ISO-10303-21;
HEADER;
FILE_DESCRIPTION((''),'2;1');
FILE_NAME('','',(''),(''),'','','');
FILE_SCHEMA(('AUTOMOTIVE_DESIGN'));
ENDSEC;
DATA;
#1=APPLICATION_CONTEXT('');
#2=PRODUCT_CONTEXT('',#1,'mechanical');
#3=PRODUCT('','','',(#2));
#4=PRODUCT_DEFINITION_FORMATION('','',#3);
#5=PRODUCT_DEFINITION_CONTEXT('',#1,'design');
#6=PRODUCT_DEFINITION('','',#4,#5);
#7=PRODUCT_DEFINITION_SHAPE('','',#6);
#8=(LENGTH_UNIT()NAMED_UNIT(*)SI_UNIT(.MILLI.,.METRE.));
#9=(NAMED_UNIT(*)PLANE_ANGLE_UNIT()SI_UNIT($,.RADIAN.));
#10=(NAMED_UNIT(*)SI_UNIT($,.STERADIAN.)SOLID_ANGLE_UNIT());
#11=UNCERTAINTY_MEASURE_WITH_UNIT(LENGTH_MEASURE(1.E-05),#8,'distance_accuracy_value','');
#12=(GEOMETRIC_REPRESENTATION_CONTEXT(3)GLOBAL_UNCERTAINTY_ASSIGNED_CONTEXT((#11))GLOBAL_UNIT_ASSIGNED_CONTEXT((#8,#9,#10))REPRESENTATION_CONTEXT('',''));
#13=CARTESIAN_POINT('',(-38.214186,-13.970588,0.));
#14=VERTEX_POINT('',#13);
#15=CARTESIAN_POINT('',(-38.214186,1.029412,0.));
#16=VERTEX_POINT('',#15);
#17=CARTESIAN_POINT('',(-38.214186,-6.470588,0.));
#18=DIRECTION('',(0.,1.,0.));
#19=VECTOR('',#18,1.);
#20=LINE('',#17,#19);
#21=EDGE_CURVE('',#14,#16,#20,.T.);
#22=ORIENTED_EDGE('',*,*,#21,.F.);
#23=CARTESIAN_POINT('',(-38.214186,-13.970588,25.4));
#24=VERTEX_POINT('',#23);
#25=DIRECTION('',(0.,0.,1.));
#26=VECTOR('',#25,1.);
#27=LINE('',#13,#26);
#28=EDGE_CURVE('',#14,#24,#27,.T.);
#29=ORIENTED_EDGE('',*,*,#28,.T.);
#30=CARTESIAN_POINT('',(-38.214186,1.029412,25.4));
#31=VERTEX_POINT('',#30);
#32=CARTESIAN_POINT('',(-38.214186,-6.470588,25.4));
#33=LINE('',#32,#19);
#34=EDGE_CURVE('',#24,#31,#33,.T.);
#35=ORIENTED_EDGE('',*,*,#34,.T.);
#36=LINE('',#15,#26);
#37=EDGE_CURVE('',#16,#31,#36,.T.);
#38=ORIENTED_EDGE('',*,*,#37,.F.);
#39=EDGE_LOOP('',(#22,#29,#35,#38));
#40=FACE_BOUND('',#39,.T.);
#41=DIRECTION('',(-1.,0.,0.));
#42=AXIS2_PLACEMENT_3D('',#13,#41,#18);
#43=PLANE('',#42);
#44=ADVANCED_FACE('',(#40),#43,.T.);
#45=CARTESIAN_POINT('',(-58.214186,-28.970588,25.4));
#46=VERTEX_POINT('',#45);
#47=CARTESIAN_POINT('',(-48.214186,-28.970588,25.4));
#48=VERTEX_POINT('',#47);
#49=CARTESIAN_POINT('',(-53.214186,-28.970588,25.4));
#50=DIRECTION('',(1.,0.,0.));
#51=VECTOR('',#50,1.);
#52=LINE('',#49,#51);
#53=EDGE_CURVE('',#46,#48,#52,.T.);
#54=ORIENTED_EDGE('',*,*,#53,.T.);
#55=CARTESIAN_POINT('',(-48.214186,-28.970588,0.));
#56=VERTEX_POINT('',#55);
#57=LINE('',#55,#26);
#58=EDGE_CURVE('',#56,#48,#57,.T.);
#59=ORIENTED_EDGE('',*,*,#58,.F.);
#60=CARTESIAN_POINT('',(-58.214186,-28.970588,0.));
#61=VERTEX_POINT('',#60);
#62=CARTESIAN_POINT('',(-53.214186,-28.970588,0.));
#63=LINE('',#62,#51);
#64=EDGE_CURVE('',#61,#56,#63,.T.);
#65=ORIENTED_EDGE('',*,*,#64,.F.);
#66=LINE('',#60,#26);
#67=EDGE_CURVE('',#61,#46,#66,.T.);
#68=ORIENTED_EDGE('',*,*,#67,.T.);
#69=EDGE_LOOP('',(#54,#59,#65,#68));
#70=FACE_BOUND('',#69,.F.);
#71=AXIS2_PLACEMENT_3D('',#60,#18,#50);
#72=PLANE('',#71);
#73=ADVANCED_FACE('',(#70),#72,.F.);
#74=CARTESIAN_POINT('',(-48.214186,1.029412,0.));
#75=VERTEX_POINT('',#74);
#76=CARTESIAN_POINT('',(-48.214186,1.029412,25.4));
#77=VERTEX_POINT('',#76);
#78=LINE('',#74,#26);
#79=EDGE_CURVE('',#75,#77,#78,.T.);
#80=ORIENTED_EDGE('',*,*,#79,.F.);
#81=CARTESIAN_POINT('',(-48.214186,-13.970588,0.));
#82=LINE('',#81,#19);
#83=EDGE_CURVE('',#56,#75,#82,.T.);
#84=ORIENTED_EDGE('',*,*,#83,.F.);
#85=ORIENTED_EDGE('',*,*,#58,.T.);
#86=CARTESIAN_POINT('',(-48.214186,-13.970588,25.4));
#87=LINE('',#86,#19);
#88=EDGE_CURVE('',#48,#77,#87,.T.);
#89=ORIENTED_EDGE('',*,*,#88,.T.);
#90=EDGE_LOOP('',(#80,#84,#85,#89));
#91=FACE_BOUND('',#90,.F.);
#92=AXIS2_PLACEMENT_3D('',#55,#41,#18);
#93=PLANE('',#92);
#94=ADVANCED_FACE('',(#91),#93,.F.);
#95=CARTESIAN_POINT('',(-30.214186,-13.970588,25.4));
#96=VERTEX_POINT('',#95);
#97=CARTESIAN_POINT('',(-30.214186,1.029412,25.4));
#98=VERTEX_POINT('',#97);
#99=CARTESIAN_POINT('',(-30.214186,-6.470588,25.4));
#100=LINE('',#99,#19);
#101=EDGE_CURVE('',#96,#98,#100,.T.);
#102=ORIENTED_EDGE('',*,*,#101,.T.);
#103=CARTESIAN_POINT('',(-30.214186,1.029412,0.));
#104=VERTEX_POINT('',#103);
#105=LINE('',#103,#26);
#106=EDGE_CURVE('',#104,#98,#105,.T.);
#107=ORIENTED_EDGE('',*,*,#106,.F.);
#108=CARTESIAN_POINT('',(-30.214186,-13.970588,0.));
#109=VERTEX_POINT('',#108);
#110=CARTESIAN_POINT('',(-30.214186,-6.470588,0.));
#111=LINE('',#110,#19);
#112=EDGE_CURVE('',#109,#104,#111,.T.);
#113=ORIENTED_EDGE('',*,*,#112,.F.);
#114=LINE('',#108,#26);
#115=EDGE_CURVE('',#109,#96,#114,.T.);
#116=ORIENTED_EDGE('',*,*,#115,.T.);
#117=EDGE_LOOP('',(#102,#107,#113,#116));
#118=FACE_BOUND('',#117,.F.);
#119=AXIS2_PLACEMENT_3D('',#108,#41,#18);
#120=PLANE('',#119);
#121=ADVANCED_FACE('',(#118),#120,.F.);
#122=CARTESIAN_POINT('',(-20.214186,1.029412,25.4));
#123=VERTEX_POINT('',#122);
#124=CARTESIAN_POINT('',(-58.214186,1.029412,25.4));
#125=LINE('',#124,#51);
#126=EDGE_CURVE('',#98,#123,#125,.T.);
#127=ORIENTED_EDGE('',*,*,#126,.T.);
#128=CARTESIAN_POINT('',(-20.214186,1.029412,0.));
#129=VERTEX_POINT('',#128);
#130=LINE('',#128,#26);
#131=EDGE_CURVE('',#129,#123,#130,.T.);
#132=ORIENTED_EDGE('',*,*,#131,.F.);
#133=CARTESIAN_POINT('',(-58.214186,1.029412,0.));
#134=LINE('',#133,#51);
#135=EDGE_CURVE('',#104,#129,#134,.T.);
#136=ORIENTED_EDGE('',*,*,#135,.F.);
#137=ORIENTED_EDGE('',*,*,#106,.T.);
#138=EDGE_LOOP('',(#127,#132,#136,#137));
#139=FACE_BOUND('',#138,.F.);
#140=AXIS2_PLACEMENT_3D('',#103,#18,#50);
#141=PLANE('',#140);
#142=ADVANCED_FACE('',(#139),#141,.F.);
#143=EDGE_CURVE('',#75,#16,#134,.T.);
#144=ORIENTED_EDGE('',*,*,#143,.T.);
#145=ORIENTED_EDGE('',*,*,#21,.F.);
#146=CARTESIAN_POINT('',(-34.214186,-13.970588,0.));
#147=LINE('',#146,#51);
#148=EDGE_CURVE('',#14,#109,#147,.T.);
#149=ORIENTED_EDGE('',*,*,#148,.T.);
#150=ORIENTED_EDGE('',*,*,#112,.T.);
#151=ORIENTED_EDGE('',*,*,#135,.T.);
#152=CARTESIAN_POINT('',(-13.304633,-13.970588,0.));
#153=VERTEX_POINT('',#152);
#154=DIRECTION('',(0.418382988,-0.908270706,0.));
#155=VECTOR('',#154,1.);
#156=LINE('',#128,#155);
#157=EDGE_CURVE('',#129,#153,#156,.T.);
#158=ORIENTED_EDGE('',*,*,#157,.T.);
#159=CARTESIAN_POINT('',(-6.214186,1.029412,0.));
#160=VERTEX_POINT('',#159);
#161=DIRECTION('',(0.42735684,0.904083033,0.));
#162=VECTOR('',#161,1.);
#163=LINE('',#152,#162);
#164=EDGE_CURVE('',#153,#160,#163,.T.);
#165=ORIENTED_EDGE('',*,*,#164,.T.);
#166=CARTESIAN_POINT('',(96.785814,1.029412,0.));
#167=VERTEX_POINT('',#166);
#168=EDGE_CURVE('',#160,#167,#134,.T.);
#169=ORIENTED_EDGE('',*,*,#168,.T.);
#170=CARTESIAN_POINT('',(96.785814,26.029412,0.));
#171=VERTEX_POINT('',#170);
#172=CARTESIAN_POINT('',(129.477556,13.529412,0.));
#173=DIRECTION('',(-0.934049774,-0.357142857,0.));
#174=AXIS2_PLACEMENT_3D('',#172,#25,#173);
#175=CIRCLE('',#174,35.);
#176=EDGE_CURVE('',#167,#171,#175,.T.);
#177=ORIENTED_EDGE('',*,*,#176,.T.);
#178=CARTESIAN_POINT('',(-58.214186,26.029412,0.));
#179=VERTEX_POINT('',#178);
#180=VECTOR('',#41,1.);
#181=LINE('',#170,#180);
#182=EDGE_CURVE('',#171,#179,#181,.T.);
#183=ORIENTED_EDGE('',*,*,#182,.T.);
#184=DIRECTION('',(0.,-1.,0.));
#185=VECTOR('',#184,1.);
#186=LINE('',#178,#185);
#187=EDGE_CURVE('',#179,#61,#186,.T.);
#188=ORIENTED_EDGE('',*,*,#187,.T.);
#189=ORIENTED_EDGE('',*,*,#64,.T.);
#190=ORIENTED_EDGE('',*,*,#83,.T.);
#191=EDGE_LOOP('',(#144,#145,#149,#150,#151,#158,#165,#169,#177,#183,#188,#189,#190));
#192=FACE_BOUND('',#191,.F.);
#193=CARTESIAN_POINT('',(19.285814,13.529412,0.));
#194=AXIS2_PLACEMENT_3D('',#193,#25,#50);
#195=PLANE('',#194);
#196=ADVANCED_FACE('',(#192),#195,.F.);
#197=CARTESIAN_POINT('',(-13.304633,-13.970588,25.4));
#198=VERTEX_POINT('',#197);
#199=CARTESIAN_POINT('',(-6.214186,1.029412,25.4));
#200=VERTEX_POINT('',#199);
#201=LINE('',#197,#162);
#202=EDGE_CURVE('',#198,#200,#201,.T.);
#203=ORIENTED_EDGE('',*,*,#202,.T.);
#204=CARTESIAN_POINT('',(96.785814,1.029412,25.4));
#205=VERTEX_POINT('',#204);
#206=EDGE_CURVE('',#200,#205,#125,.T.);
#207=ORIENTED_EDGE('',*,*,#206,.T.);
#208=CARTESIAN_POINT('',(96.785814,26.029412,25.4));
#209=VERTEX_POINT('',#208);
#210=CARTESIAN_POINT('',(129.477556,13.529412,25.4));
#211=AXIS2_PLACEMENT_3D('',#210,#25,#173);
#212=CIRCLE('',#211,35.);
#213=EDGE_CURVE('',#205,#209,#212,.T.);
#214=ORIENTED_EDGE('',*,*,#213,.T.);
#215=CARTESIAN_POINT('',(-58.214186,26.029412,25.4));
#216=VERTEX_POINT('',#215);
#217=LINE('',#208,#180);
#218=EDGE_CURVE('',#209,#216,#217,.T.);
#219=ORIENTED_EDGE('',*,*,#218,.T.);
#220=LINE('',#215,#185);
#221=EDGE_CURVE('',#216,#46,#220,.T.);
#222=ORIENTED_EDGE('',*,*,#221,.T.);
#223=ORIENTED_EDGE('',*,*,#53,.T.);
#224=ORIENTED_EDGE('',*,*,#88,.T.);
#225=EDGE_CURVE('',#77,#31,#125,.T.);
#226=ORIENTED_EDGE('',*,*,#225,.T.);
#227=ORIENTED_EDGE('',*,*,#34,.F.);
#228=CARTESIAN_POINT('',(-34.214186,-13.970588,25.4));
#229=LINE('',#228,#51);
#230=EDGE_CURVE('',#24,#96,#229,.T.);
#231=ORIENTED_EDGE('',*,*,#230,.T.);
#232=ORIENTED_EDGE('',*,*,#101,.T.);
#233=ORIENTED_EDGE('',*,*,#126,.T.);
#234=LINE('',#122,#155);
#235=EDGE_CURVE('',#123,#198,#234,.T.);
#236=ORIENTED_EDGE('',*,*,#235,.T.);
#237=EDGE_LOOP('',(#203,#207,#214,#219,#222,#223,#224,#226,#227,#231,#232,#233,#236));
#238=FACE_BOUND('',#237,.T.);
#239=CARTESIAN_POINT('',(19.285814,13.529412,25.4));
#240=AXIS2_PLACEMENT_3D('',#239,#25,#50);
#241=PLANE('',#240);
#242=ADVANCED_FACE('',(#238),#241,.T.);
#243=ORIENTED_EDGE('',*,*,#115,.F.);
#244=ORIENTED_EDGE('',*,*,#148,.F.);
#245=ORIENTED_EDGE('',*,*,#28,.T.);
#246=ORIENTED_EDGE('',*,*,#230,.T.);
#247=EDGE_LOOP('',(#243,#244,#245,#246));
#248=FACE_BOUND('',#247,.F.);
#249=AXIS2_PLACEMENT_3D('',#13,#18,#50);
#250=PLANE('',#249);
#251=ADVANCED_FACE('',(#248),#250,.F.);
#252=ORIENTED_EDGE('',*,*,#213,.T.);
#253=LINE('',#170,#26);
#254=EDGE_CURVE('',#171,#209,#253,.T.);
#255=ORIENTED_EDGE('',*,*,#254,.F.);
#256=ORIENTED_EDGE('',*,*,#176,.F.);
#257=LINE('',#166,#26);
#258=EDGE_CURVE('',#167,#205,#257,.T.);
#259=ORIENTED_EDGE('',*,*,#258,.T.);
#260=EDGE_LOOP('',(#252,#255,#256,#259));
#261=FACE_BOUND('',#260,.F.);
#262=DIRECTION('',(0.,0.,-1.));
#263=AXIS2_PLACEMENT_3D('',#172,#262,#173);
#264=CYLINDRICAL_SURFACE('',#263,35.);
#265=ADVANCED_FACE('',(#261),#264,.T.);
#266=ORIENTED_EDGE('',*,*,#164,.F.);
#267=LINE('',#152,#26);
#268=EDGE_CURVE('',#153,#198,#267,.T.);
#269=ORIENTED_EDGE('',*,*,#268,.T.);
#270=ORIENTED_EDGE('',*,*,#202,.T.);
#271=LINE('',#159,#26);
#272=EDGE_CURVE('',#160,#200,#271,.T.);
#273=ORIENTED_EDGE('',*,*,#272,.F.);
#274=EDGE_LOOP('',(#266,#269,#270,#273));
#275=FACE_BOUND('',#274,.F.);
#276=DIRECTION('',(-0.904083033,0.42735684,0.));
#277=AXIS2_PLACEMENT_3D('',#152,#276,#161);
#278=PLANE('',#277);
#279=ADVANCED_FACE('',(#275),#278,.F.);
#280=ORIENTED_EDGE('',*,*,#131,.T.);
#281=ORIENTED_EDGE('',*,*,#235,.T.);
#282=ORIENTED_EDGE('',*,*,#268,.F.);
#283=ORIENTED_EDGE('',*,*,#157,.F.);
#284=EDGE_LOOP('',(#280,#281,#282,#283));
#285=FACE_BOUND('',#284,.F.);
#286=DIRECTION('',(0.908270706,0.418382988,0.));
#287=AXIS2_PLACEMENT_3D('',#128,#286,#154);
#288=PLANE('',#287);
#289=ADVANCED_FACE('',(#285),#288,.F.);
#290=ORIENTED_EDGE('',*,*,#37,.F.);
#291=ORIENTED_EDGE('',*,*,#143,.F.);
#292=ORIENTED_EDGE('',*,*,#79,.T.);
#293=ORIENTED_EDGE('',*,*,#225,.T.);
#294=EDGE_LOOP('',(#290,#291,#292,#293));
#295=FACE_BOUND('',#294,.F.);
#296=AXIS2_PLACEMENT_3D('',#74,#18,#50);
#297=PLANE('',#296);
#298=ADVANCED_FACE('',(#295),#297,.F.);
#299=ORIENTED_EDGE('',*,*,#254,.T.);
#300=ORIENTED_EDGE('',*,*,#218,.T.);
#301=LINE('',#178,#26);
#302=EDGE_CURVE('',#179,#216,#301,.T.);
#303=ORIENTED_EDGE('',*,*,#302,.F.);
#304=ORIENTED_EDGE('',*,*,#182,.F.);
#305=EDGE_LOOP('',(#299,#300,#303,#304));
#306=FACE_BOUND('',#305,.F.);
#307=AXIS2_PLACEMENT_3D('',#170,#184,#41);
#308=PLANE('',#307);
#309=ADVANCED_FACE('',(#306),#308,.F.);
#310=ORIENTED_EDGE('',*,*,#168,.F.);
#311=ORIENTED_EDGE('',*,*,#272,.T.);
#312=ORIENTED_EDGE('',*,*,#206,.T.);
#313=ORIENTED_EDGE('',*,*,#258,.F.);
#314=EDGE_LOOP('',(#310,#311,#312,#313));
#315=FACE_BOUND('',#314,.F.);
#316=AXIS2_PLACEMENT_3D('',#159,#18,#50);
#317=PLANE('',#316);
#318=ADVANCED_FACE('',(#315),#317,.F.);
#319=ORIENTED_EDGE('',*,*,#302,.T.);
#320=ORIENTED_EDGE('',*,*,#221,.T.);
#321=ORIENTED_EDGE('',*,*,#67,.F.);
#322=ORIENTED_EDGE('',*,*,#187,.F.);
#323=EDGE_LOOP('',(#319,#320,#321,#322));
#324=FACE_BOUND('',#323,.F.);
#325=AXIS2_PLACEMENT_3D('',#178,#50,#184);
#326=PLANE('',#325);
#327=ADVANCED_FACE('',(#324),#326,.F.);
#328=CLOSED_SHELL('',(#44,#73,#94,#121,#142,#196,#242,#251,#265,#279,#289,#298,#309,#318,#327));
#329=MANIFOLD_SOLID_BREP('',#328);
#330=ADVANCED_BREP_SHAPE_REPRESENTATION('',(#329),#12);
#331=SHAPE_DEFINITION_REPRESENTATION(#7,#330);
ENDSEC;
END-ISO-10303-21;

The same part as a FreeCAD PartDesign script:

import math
import FreeCAD as App
import Part
import Sketcher
from FreeCAD import Vector
Q = App.Units.Quantity

doc = App.newDocument("Part")
body = doc.addObject("PartDesign::Body", "Body")

sketch1 = body.newObject("Sketcher::SketchObject", "Sketch")
sketch1.AttachmentSupport = (doc.getObject("XY_Plane"), [""])
sketch1.MapMode = "FlatFace"
sketch1.addGeometry([
    Part.LineSegment(Vector(97, 26, 0), Vector(-58, 26, 0)),
    Part.LineSegment(Vector(-58, 26, 0), Vector(-58, -29, 0)),
    Part.LineSegment(Vector(-58, -29, 0), Vector(-48, -29, 0)),
    Part.LineSegment(Vector(-48, -29, 0), Vector(-48, 1, 0)),
    Part.LineSegment(Vector(-48, 1, 0), Vector(-38, 1, 0)),
    Part.LineSegment(Vector(-38, 1, 0), Vector(-38, -14, 0)),
    Part.LineSegment(Vector(-38, -14, 0), Vector(-30, -14, 0)),
    Part.LineSegment(Vector(-30, -14, 0), Vector(-30, 1, 0)),
    Part.LineSegment(Vector(-30, 1, 0), Vector(-20, 1, 0)),
    Part.LineSegment(Vector(-20, 1, 0), Vector(-13, -14, 0)),
    Part.LineSegment(Vector(-13, -14, 0), Vector(-6, 1, 0)),
    Part.LineSegment(Vector(-6, 1, 0), Vector(97, 1, 0)),
    Part.ArcOfCircle(Part.Circle(Vector(129, 14, 0), Vector(0, 0, 1), 35), math.radians(-159), math.radians(159)),
], False)
sketch1.addConstraint([
    Sketcher.Constraint("Coincident", 0, 2, 1, 1),
    Sketcher.Constraint("Coincident", 1, 2, 2, 1),
    Sketcher.Constraint("Coincident", 2, 2, 3, 1),
    Sketcher.Constraint("Coincident", 3, 2, 4, 1),
    Sketcher.Constraint("Coincident", 4, 2, 5, 1),
    Sketcher.Constraint("Coincident", 5, 2, 6, 1),
    Sketcher.Constraint("Coincident", 6, 2, 7, 1),
    Sketcher.Constraint("Coincident", 7, 2, 8, 1),
    Sketcher.Constraint("Coincident", 8, 2, 9, 1),
    Sketcher.Constraint("Coincident", 9, 2, 10, 1),
    Sketcher.Constraint("Coincident", 10, 2, 11, 1),
    Sketcher.Constraint("Coincident", 11, 2, 12, 1),
    Sketcher.Constraint("Coincident", 12, 2, 0, 1),
    Sketcher.Constraint("Horizontal", 0),
    Sketcher.Constraint("Vertical", 1),
    Sketcher.Constraint("Horizontal", 2),
    Sketcher.Constraint("Vertical", 3),
    Sketcher.Constraint("Horizontal", 4),
    Sketcher.Constraint("Vertical", 5),
    Sketcher.Constraint("Horizontal", 6),
    Sketcher.Constraint("Vertical", 7),
    Sketcher.Constraint("Horizontal", 8),
    Sketcher.Constraint("Horizontal", 11),
    Sketcher.Constraint("Horizontal", 4, 2, 7, 2),
    Sketcher.Constraint("Horizontal", 6, 2, 9, 2),
    Sketcher.Constraint("Horizontal", 8, 2, 10, 2),
    Sketcher.Constraint("Vertical", 11, 2, 12, 2),
    Sketcher.Constraint("Equal", 2, 4),
    Sketcher.Constraint("Equal", 4, 8),
    Sketcher.Constraint("Radius", 12, Q("35 mm")),
    Sketcher.Constraint("DistanceX", 0, 2, 0, 1, Q("155 mm")),
    Sketcher.Constraint("DistanceX", 2, 1, 2, 2, Q("10 mm")),
    Sketcher.Constraint("DistanceX", 6, 1, 6, 2, Q("8 mm")),
    Sketcher.Constraint("DistanceX", 11, 1, 11, 2, Q("103 mm")),
    Sketcher.Constraint("DistanceY", 1, 2, 1, 1, Q("55 mm")),
    Sketcher.Constraint("DistanceY", 3, 1, 3, 2, Q("30 mm")),
    Sketcher.Constraint("DistanceY", 5, 2, 5, 1, Q("15 mm")),
    Sketcher.Constraint("Distance", 9, Q("16.5149 mm")),
    Sketcher.Constraint("DistanceY", -1, 1, 12, 3, Q("13.529412 mm")),
    Sketcher.Constraint("DistanceX", -1, 1, 12, 3, Q("129.477556 mm")),
])
pad1 = body.newObject("PartDesign::Pad", "Pad")
pad1.Profile = sketch1
pad1.Length = 25.4

doc.recompute()
